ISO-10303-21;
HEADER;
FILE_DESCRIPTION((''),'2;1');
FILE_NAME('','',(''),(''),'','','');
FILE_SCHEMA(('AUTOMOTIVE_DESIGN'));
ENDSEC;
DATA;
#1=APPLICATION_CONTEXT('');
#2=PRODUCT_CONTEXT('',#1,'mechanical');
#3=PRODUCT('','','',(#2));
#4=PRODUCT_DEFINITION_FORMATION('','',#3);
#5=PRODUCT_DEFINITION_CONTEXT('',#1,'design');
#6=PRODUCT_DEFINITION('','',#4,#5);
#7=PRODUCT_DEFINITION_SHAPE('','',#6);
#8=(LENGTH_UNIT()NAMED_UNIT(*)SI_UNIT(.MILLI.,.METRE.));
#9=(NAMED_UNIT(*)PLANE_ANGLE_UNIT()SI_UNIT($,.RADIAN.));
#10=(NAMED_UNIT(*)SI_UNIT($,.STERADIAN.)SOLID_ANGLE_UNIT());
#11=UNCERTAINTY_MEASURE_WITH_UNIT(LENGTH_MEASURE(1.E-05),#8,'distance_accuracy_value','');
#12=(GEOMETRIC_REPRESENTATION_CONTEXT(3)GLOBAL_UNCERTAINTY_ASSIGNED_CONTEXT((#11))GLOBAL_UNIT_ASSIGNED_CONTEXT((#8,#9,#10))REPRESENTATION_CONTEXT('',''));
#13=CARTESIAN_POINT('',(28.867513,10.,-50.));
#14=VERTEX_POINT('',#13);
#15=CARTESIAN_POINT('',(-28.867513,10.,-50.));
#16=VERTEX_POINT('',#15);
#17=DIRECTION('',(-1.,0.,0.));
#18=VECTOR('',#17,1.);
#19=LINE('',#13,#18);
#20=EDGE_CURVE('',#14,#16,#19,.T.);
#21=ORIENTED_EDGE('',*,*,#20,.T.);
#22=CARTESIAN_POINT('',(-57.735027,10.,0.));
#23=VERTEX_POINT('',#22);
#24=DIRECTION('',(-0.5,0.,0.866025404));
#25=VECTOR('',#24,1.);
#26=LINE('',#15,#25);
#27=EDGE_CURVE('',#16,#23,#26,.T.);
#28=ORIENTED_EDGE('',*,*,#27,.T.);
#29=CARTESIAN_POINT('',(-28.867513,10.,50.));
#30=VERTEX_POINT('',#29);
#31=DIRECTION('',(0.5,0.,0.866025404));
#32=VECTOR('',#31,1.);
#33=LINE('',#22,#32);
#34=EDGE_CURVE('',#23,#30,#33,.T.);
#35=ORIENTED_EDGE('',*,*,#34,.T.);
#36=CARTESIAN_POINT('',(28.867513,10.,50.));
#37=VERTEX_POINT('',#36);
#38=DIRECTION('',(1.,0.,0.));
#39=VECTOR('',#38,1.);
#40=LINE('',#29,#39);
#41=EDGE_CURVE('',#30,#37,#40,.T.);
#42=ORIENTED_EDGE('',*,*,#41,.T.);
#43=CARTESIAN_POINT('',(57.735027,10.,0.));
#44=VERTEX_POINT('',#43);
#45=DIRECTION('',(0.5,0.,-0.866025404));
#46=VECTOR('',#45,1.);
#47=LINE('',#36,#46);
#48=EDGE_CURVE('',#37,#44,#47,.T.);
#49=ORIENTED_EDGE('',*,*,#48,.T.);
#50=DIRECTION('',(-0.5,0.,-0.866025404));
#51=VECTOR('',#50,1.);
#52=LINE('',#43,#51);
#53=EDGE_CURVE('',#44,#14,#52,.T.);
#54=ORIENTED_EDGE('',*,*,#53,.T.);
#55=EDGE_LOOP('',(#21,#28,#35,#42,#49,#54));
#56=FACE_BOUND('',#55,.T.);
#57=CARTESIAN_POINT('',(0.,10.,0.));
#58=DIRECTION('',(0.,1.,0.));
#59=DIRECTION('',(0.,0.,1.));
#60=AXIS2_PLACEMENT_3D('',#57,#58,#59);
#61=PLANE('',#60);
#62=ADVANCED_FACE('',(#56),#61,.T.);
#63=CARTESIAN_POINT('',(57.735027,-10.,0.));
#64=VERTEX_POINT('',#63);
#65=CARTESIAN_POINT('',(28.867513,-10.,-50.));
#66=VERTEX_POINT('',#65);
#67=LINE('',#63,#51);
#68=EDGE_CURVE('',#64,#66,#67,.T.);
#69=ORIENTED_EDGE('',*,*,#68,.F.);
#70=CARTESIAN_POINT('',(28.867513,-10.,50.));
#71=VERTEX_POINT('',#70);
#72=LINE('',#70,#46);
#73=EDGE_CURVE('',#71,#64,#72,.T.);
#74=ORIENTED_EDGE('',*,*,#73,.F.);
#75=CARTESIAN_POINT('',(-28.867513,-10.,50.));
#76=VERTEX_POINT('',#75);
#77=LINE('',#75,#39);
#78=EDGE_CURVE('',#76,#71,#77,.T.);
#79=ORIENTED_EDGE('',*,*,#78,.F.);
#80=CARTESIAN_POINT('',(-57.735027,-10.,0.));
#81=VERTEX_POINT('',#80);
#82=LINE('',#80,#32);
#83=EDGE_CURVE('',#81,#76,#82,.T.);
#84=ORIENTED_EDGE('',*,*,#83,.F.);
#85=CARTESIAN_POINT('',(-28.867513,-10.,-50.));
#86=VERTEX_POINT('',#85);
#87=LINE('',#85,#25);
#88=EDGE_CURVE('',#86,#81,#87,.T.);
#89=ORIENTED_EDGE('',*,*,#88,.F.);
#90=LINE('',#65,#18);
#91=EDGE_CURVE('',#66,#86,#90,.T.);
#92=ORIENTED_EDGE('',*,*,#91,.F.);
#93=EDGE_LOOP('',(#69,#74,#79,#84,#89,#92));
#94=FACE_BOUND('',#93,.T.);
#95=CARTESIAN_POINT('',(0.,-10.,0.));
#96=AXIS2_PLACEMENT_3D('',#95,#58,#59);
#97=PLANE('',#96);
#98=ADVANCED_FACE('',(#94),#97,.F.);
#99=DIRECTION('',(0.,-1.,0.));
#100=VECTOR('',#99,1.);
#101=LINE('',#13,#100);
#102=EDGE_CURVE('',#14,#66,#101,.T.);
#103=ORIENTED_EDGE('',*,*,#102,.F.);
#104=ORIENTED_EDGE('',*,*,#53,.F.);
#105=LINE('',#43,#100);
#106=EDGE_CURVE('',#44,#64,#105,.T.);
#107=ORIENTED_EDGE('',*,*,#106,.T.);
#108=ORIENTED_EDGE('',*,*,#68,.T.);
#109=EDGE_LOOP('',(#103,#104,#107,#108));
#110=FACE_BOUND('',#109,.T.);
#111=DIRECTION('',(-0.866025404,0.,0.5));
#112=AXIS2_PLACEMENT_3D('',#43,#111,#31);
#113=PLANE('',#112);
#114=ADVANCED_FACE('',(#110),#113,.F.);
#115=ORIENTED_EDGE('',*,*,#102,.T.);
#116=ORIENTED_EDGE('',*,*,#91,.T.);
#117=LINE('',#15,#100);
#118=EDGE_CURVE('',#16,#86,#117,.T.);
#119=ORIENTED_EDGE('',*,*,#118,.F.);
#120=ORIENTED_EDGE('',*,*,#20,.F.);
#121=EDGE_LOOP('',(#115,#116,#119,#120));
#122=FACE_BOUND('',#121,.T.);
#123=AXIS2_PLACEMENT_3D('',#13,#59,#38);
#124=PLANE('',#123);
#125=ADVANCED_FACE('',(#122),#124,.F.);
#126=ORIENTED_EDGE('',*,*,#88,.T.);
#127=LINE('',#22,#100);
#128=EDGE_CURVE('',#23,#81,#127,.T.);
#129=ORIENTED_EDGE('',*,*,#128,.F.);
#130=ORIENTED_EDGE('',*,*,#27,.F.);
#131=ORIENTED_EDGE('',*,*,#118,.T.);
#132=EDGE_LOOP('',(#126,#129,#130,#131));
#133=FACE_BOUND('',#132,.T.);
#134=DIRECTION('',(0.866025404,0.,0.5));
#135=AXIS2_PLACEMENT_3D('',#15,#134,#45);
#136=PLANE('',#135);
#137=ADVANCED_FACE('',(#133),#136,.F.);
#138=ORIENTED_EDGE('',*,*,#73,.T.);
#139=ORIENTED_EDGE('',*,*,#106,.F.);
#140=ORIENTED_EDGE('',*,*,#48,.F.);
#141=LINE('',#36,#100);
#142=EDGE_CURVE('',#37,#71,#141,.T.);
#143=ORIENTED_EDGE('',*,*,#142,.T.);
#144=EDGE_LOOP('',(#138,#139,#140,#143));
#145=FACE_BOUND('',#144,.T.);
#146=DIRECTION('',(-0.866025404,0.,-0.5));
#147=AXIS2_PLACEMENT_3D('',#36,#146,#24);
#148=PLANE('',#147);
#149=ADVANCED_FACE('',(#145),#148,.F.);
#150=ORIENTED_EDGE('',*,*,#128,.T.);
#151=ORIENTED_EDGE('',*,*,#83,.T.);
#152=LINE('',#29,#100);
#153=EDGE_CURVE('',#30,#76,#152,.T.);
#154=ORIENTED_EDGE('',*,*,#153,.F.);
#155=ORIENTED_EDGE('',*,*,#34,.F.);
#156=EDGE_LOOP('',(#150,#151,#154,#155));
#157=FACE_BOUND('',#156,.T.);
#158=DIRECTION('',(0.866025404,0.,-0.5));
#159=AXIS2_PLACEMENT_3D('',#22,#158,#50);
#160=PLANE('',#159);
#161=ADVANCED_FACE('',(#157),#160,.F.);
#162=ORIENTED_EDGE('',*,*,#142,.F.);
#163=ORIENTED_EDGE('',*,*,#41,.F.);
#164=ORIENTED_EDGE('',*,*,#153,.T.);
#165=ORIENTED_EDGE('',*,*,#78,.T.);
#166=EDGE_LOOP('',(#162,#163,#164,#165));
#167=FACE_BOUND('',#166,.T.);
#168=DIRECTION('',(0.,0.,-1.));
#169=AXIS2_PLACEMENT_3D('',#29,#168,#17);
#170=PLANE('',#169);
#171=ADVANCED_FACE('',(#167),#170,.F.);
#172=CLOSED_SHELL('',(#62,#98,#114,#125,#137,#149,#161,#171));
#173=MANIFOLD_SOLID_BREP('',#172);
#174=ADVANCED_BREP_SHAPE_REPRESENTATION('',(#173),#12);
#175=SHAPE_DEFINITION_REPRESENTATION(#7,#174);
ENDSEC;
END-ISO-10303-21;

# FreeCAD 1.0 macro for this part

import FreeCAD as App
import Part
import Sketcher
from FreeCAD import Vector
Q = App.Units.Quantity

doc = App.newDocument("Part")
body = doc.addObject("PartDesign::Body", "Body")

# Sketch on XZ plane
sketch1 = body.newObject("Sketcher::SketchObject", "Sketch")
sketch1.AttachmentSupport = (doc.getObject("XZ_Plane"), [""])
sketch1.MapMode = "FlatFace"
sketch1.addGeometry([
    Part.LineSegment(Vector(28.867513, -50, 0), Vector(-28.867513, -50, 0)),  # 0
    Part.LineSegment(Vector(-28.867513, -50, 0), Vector(-57.735027, 0, 0)),  # 1
    Part.LineSegment(Vector(-57.735027, 0, 0), Vector(-28.867513, 50, 0)),  # 2
    Part.LineSegment(Vector(-28.867513, 50, 0), Vector(28.867513, 50, 0)),  # 3
    Part.LineSegment(Vector(28.867513, 50, 0), Vector(57.735027, 0, 0)),  # 4
    Part.LineSegment(Vector(57.735027, 0, 0), Vector(28.867513, -50, 0)),  # 5
], False)
sketch1.addConstraint([
    Sketcher.Constraint("Coincident", 0, 2, 1, 1),
    Sketcher.Constraint("Coincident", 1, 2, 2, 1),
    Sketcher.Constraint("Coincident", 2, 2, 3, 1),
    Sketcher.Constraint("Coincident", 3, 2, 4, 1),
    Sketcher.Constraint("Coincident", 4, 2, 5, 1),
    Sketcher.Constraint("Coincident", 5, 2, 0, 1),
    Sketcher.Constraint("Horizontal", 0),
    Sketcher.Constraint("Horizontal", 3),
    Sketcher.Constraint("Symmetric", 0, 2, 3, 2, -1, 1),
    Sketcher.Constraint("Symmetric", 1, 2, 4, 2, -1, 1),
    Sketcher.Constraint("PointOnObject", 1, 2, -1),
    Sketcher.Constraint("Parallel", 2, 5),
    Sketcher.Constraint("Vertical", 0, 2, 2, 2),
    Sketcher.Constraint("Angle", 1, Q("120 deg")),
    Sketcher.Constraint("DistanceY", 0, 2, -1, 1, 50.0),
    Sketcher.Constraint("DistanceX", 0, 2, 0, 1, 57.735027),
])
pad1 = body.newObject("PartDesign::Pad", "Pad")
pad1.Profile = sketch1
pad1.Length = 20
pad1.Midplane = True

doc.recompute()
